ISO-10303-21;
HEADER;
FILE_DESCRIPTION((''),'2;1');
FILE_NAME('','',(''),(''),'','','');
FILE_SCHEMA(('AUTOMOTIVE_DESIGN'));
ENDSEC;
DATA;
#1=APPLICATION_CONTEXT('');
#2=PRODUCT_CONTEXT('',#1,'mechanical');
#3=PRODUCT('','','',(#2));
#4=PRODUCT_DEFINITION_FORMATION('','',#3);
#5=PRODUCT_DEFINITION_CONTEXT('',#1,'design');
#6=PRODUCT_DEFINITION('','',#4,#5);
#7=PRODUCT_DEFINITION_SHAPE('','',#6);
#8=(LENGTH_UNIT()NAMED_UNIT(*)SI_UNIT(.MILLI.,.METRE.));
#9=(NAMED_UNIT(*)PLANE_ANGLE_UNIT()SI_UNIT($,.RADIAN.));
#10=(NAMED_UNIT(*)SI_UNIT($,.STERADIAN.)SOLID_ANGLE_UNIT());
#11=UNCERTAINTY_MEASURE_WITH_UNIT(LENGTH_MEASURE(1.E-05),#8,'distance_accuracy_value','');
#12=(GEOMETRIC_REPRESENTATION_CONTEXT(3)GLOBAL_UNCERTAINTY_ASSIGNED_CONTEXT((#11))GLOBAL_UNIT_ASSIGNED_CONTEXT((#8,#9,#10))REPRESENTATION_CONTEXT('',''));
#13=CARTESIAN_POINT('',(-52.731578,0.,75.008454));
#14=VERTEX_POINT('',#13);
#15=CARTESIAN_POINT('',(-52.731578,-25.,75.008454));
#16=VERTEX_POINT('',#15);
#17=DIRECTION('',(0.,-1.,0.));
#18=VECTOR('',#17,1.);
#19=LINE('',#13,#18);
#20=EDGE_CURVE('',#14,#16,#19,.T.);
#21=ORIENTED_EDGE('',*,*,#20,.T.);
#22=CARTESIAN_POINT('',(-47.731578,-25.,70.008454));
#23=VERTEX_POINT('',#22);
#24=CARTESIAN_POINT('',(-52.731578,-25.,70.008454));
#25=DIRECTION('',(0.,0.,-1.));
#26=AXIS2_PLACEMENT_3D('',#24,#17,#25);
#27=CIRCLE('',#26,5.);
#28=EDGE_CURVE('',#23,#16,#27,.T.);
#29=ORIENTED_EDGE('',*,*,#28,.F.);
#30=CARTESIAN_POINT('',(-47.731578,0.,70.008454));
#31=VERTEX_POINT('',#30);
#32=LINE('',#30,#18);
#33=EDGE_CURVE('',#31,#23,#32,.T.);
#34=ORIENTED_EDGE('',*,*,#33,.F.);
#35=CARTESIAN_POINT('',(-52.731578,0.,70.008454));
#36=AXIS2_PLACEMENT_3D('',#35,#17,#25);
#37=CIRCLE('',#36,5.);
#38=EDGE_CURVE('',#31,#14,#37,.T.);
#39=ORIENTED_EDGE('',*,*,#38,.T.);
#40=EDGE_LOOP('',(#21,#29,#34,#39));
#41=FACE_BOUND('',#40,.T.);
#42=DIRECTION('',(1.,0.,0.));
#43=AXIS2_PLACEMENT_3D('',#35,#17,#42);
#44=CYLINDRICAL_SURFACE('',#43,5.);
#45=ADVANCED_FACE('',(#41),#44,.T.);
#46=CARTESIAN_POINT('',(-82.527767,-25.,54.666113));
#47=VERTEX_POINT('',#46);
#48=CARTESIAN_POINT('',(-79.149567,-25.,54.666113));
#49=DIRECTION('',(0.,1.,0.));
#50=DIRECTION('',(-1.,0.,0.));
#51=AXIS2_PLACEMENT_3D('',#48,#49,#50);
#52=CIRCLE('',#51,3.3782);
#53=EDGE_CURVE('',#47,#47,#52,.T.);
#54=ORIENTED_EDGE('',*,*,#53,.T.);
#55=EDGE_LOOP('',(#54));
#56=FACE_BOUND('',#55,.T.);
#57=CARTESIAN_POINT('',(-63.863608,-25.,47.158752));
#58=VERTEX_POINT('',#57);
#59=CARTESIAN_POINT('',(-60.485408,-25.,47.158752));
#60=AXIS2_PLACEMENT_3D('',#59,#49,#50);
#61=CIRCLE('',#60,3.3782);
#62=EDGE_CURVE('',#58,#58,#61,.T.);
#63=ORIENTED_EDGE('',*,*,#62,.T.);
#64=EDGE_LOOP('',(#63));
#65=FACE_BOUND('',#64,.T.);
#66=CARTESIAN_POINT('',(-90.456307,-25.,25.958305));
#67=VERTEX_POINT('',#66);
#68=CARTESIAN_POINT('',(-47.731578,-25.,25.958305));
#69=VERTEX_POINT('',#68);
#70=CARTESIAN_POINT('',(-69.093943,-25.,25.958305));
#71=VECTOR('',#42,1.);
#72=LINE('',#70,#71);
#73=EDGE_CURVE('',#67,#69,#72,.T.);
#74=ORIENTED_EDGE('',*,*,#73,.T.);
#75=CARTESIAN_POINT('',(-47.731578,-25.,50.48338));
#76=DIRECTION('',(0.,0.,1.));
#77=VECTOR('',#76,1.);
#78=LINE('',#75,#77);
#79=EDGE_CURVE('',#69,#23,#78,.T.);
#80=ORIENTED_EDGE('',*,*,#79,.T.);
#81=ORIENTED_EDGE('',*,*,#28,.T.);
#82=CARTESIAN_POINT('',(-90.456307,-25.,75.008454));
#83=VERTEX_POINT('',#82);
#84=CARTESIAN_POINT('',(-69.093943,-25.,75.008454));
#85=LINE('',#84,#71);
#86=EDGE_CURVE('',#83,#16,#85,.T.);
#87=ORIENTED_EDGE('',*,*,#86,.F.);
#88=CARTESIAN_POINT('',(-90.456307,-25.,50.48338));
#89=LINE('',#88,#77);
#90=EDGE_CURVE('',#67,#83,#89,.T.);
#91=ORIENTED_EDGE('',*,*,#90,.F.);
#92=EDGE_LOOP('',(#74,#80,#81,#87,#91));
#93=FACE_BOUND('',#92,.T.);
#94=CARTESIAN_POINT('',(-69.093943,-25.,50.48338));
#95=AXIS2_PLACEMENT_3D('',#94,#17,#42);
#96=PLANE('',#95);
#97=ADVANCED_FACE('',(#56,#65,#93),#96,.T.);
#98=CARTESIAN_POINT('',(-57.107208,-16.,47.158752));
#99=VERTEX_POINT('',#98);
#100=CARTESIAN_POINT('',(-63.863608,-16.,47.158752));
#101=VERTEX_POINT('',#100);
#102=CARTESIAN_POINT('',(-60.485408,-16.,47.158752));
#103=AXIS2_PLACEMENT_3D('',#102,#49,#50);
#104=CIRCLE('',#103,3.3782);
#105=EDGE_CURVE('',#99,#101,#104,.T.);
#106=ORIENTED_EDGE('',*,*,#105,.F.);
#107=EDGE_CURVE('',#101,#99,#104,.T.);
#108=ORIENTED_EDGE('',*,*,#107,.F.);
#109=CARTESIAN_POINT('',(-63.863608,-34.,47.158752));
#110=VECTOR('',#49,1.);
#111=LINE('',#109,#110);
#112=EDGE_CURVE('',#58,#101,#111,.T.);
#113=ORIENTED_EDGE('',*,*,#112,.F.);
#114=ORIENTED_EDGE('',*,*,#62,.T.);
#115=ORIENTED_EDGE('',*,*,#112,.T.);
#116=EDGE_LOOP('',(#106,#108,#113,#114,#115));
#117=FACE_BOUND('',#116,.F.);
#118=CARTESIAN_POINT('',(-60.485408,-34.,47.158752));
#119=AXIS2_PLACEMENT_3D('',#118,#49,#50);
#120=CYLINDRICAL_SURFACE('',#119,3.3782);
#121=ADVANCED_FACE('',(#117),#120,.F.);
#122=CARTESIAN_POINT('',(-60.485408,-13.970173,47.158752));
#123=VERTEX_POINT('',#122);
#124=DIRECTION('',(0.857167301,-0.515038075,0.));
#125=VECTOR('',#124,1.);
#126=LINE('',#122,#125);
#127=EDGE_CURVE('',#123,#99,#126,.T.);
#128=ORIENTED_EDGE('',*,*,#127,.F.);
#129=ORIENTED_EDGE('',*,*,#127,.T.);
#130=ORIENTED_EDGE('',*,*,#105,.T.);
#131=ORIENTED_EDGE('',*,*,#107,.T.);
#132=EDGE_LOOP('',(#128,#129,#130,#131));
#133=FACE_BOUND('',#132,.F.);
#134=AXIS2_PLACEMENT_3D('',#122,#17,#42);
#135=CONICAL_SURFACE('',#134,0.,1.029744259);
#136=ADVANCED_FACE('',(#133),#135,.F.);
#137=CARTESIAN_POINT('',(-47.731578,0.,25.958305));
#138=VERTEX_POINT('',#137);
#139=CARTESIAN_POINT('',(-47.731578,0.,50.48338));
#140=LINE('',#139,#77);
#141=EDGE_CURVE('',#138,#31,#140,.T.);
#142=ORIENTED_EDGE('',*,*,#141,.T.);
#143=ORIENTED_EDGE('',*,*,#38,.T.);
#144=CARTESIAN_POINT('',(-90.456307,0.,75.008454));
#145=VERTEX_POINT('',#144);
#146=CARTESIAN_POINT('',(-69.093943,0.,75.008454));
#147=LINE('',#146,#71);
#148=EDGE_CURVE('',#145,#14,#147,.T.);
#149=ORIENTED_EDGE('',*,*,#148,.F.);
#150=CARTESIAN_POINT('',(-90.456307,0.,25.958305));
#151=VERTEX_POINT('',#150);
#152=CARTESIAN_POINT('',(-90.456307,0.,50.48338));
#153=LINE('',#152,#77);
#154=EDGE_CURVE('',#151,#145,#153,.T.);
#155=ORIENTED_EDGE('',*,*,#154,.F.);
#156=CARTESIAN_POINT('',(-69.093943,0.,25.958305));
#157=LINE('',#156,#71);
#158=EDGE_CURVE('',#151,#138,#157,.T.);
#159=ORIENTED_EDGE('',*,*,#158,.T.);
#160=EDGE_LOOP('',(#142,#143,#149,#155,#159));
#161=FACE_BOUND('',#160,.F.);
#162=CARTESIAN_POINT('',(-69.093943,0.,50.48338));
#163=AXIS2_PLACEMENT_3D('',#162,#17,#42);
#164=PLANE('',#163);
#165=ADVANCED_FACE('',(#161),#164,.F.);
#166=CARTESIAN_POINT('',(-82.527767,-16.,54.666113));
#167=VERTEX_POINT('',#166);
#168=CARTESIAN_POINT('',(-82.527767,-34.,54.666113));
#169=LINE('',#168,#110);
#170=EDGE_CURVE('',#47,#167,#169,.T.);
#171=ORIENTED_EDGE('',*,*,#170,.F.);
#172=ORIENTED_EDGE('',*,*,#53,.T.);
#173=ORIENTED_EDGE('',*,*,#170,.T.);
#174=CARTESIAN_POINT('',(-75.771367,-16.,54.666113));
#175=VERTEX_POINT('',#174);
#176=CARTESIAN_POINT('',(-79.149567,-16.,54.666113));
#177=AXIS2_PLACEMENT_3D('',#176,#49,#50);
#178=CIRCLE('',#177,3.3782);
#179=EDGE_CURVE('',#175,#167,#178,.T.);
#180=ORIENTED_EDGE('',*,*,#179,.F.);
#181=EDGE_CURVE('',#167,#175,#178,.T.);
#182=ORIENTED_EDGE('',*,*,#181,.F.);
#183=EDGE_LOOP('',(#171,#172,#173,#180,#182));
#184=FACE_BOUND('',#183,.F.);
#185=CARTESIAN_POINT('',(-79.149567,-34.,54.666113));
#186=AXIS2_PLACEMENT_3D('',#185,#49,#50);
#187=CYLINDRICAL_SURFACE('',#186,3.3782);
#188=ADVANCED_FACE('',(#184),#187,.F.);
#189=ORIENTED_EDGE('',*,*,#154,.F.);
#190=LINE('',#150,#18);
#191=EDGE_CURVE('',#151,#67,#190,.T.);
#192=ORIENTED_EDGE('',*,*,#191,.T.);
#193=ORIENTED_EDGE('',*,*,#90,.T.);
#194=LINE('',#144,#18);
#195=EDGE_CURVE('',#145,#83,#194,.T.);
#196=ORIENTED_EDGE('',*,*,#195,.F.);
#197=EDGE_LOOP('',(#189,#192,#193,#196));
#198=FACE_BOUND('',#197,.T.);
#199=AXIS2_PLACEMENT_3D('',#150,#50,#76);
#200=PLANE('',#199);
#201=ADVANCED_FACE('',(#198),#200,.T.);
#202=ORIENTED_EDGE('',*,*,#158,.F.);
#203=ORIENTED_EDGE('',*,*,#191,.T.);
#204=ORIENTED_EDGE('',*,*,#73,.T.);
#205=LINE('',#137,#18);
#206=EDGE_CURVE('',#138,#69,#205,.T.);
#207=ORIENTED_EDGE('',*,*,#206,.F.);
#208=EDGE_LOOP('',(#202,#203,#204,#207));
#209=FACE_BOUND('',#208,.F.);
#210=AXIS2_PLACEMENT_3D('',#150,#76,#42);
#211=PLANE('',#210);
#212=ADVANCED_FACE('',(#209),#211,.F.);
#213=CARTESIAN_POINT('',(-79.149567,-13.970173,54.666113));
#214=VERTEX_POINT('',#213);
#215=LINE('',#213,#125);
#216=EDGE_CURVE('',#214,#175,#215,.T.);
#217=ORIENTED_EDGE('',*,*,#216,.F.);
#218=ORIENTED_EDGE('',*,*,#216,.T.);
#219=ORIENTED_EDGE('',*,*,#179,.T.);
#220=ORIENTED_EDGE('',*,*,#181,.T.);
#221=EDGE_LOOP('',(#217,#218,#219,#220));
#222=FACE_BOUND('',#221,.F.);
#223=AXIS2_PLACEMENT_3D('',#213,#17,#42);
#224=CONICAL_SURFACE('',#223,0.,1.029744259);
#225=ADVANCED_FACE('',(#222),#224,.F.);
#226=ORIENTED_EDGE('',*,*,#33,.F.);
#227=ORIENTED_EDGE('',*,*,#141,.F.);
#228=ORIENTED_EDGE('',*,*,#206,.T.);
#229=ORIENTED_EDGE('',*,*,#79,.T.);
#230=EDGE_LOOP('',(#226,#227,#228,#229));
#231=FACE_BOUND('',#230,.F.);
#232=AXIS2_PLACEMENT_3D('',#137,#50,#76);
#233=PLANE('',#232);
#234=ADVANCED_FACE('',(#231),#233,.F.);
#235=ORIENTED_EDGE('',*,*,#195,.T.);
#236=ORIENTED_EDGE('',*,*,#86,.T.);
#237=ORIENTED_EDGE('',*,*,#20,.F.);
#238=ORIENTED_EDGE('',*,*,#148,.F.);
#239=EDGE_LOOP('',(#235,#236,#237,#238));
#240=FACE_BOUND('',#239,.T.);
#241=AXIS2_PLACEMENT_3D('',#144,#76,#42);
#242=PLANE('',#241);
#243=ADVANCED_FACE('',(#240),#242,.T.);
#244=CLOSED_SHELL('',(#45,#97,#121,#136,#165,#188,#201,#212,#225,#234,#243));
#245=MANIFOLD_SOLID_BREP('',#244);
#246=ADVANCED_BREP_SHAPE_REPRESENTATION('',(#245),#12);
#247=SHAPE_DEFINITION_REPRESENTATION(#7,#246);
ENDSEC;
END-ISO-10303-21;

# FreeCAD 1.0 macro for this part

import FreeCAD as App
import Part
import Sketcher

V = App.Vector


def edges_at(feature, points):
    """Names of the edges that pass closest to the given points."""
    edges = feature.Shape.Edges
    near = lambda p: min(range(len(edges)), key=lambda i: edges[i].distToShape(Part.Vertex(*p))[0])
    return sorted({f"Edge{near(p) + 1}" for p in points})


def add_polygon(sketch, points):
    """Adds a closed chain of lines whose ends are joined by coincident constraints."""
    first, n = sketch.GeometryCount, len(points)
    for a, b in zip(points, points[1:] + points[:1]):
        sketch.addGeometry(Part.LineSegment(App.Vector(*a, 0), App.Vector(*b, 0)), False)
    for i in range(n):
        sketch.addConstraint(Sketcher.Constraint("Coincident", first + i, 2, first + (i + 1) % n, 1))

doc = App.newDocument("Part")
body = doc.addObject("PartDesign::Body", "Body")

# Sketch on XZ plane
sketch1 = doc.addObject("Sketcher::SketchObject", "Sketch")
body.addObject(sketch1)
sketch1.AttachmentSupport = (doc.XZ_Plane, [""])
sketch1.MapMode = "FlatFace"
add_polygon(sketch1, [(-90.456307, 75.008454), (-90.456307, 25.958305), (-47.731578, 25.958305), (-47.731578, 75.008454)])  # lines 0-3
sketch1.addConstraint(Sketcher.Constraint("Vertical", 0))
sketch1.addConstraint(Sketcher.Constraint("Horizontal", 1))
sketch1.addConstraint(Sketcher.Constraint("Vertical", 2))
sketch1.addConstraint(Sketcher.Constraint("Horizontal", 3))
sketch1.addConstraint(Sketcher.Constraint("DistanceX", 1, 1, 1, 2, 42.724729))
sketch1.addConstraint(Sketcher.Constraint("DistanceY", 0, 2, 0, 1, 49.050149))
sketch1.addConstraint(Sketcher.Constraint("DistanceX", 1, 2, -1, 1, 47.731578))
sketch1.addConstraint(Sketcher.Constraint("DistanceY", -1, 1, 0, 2, 25.958305))
pad1 = doc.addObject("PartDesign::Pad", "Pad")
body.addObject(pad1)
pad1.Profile = sketch1
pad1.Length = 25
doc.recompute()

fillet = doc.addObject("PartDesign::Fillet", "Fillet")
body.addObject(fillet)
fillet.Base = (pad1, edges_at(pad1, [(-47.732, -12.5, 75.008)]))
fillet.Radius = 5

# Sketch on XZ plane
sketch2 = doc.addObject("Sketcher::SketchObject", "Sketch001")
body.addObject(sketch2)
sketch2.AttachmentSupport = (doc.XZ_Plane, [""])
sketch2.MapMode = "FlatFace"
sketch2.AttachmentOffset = App.Placement(V(0, 0, 25), App.Rotation())
sketch2.addGeometry(Part.Circle(V(-79.149567, 54.666113, 0), V(0, 0, 1), 3.3782), False)
sketch2.addGeometry(Part.Circle(V(-60.485408, 47.158752, 0), V(0, 0, 1), 3.3782), False)
sketch2.addConstraint(Sketcher.Constraint("Equal", 0, 1))
sketch2.addConstraint(Sketcher.Constraint("Diameter", 0, 6.7564))
sketch2.addConstraint(Sketcher.Constraint("DistanceY", -1, 1, 1, 3, 47.158752))
sketch2.addConstraint(Sketcher.Constraint("DistanceX", 0, 3, 1, 3, 18.664159))
sketch2.addConstraint(Sketcher.Constraint("DistanceY", 1, 3, 0, 3, 7.507361))
sketch2.addConstraint(Sketcher.Constraint("DistanceX", 0, 3, -1, 1, 79.149567))
doc.recompute()
hole = doc.addObject("PartDesign::Hole", "Hole")
body.addObject(hole)
hole.Profile = sketch2
hole.ThreadType = "None"
hole.Diameter = 6.7564
hole.DepthType = "Dimension"
hole.Depth = 9
hole.DrillPoint = "Angled"
hole.DrillPointAngle = 118

doc.recompute()
